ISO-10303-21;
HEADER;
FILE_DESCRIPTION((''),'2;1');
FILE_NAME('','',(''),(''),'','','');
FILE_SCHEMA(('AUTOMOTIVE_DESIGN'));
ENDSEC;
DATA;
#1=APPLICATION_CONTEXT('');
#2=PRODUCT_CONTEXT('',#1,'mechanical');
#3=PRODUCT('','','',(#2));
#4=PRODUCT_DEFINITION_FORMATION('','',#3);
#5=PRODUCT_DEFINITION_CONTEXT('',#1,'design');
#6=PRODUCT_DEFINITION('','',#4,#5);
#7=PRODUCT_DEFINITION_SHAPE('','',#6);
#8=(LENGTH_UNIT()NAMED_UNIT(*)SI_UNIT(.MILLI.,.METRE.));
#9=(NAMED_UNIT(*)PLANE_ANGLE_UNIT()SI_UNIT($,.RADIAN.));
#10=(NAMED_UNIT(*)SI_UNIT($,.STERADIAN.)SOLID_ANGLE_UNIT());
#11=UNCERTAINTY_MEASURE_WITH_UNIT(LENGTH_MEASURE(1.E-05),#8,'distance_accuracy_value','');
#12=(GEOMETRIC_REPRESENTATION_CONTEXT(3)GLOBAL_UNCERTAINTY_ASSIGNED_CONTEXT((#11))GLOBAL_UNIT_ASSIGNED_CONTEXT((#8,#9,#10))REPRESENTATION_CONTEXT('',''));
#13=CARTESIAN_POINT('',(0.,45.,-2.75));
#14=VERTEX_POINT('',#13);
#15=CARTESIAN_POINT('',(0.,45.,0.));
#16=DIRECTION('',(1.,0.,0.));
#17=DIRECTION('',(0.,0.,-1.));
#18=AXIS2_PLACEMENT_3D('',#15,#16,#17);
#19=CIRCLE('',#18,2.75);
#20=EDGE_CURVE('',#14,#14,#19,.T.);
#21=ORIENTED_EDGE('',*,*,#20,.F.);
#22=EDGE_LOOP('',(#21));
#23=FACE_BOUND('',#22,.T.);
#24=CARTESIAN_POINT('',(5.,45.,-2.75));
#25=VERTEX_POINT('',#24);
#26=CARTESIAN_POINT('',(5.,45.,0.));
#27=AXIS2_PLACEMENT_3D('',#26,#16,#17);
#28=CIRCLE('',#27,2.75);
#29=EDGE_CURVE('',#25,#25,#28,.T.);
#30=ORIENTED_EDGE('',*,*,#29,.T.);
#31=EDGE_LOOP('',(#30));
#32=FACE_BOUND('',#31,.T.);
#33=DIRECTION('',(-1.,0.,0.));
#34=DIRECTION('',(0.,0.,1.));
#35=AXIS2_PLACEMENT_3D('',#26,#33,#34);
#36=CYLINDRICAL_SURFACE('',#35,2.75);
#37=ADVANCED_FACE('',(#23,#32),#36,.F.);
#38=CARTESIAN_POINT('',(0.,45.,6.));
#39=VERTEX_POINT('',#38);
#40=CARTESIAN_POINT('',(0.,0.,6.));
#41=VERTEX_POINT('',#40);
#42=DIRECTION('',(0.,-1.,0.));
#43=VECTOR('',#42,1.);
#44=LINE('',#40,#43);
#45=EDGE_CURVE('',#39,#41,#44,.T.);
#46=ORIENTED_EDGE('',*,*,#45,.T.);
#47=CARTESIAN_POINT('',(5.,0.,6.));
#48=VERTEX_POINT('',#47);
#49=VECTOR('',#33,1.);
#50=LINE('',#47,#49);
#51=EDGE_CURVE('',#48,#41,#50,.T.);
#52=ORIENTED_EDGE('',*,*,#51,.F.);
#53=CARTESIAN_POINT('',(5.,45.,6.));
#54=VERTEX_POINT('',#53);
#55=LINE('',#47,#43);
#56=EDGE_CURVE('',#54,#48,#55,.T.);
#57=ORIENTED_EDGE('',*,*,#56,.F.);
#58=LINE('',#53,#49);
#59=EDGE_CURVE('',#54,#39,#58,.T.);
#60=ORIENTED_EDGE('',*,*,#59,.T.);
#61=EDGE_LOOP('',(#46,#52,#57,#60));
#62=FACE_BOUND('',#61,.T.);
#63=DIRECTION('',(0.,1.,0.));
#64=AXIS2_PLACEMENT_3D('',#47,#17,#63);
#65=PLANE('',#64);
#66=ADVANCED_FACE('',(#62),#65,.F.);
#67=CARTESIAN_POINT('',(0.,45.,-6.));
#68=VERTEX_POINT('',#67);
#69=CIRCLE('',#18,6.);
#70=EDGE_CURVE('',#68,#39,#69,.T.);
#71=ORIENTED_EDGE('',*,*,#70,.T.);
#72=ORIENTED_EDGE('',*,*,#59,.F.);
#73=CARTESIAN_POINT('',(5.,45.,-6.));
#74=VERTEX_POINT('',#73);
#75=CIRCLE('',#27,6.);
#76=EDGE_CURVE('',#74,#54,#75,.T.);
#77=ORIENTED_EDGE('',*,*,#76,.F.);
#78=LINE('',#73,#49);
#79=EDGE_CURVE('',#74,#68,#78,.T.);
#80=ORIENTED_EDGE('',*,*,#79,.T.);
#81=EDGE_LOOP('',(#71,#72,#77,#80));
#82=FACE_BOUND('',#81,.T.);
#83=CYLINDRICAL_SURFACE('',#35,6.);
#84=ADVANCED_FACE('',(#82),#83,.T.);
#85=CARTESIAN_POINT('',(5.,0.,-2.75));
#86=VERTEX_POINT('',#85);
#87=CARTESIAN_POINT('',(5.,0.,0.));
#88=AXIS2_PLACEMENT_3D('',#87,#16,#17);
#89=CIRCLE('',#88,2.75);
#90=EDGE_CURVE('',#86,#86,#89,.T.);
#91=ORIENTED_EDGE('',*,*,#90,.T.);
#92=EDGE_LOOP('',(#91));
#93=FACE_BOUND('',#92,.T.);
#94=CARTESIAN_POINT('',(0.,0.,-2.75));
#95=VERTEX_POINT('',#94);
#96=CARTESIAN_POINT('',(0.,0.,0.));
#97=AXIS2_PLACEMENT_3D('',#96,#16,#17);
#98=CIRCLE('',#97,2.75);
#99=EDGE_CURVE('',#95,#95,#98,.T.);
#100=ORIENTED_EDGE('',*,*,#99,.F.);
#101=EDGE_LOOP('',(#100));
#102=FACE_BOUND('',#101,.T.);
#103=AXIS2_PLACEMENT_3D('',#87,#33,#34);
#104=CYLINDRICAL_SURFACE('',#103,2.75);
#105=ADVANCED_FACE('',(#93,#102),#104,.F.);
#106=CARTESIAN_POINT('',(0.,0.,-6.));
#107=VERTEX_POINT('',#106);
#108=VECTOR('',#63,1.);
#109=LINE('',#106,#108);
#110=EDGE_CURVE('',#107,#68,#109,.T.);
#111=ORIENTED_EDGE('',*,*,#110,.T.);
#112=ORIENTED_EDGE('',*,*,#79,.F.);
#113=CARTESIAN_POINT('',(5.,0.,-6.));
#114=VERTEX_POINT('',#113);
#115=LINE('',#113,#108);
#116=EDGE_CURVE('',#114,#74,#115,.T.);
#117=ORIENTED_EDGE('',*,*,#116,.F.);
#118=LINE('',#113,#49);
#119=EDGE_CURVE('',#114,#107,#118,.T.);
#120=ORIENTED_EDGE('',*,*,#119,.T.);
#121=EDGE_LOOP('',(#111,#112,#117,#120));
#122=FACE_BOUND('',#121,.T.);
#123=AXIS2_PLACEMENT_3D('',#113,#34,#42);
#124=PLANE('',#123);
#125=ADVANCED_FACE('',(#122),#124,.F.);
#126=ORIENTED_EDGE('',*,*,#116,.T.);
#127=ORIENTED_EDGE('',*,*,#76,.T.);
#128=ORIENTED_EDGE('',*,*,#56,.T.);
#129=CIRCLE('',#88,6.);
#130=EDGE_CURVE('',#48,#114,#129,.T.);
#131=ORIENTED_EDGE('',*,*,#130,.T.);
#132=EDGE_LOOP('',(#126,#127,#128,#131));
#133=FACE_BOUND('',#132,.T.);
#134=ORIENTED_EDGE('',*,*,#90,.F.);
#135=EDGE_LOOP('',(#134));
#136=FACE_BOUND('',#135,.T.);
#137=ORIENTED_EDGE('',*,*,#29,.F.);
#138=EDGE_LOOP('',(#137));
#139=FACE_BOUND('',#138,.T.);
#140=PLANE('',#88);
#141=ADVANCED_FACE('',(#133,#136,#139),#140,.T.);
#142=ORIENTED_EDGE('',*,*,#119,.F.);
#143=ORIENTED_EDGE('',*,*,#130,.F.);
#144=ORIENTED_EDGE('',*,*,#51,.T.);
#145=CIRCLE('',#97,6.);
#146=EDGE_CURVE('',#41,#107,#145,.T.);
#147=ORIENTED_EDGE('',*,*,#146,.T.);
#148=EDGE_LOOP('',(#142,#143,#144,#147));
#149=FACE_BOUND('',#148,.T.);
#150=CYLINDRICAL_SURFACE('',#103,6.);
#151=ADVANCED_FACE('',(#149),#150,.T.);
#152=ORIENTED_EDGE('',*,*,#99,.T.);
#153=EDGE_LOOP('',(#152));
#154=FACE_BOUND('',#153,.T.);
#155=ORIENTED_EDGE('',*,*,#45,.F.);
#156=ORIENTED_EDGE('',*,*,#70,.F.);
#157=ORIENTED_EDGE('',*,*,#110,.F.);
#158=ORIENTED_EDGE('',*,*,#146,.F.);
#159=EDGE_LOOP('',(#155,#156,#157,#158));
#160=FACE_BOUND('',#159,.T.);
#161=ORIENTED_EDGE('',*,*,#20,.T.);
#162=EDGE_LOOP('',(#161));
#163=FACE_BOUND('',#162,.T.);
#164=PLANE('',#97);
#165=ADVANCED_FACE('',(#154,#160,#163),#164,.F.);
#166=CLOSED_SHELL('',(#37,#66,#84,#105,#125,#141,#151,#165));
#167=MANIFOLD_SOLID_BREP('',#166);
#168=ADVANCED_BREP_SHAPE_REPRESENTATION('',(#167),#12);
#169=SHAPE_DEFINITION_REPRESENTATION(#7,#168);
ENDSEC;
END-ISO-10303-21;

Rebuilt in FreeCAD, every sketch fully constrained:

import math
import FreeCAD as App
import Part
import Sketcher

V = App.Vector
Q = App.Units.Quantity

doc = App.newDocument("Part")
body = doc.addObject("PartDesign::Body", "Body")

sketch1 = body.newObject("Sketcher::SketchObject", "Sketch")
sketch1.AttachmentSupport = (doc.getObject("YZ_Plane"), [""])
sketch1.MapMode = "FlatFace"
sketch1.addGeometry(Part.LineSegment(V(45, 6, 0), V(0, 6, 0)), False)
sketch1.addGeometry(Part.ArcOfCircle(Part.Circle(V(0, 0, 0), V(0, 0, 1), 6), math.radians(90), math.radians(270)), False)
sketch1.addGeometry(Part.LineSegment(V(0, -6, 0), V(45, -6, 0)), False)
sketch1.addGeometry(Part.ArcOfCircle(Part.Circle(V(45, 0, 0), V(0, 0, 1), 6), math.radians(-90), math.radians(90)), False)
sketch1.addGeometry(Part.Circle(V(45, 0, 0), V(0, 0, 1), 2.75), False)
sketch1.addGeometry(Part.Circle(V(0, 0, 0), V(0, 0, 1), 2.75), False)
sketch1.addConstraint(Sketcher.Constraint("Tangent", 0, 2, 1, 1))
sketch1.addConstraint(Sketcher.Constraint("Tangent", 1, 2, 2, 1))
sketch1.addConstraint(Sketcher.Constraint("Tangent", 2, 2, 3, 1))
sketch1.addConstraint(Sketcher.Constraint("Tangent", 3, 2, 0, 1))
sketch1.addConstraint(Sketcher.Constraint("Horizontal", 0))
sketch1.addConstraint(Sketcher.Constraint("Horizontal", 2))
sketch1.addConstraint(Sketcher.Constraint("Coincident", 1, 3, -1, 1))
sketch1.addConstraint(Sketcher.Constraint("Coincident", 5, 3, -1, 1))
sketch1.addConstraint(Sketcher.Constraint("Coincident", 4, 3, 3, 3))
sketch1.addConstraint(Sketcher.Constraint("Equal", 4, 5))
sketch1.addConstraint(Sketcher.Constraint("Radius", 1, Q("6 mm")))
sketch1.addConstraint(Sketcher.Constraint("Diameter", 4, Q("5.5 mm")))
sketch1.addConstraint(Sketcher.Constraint("DistanceX", 0, 2, 0, 1, Q("45 mm")))
pad1 = body.newObject("PartDesign::Pad", "Pad")
pad1.Profile = sketch1
pad1.Length = 5

doc.recompute()
